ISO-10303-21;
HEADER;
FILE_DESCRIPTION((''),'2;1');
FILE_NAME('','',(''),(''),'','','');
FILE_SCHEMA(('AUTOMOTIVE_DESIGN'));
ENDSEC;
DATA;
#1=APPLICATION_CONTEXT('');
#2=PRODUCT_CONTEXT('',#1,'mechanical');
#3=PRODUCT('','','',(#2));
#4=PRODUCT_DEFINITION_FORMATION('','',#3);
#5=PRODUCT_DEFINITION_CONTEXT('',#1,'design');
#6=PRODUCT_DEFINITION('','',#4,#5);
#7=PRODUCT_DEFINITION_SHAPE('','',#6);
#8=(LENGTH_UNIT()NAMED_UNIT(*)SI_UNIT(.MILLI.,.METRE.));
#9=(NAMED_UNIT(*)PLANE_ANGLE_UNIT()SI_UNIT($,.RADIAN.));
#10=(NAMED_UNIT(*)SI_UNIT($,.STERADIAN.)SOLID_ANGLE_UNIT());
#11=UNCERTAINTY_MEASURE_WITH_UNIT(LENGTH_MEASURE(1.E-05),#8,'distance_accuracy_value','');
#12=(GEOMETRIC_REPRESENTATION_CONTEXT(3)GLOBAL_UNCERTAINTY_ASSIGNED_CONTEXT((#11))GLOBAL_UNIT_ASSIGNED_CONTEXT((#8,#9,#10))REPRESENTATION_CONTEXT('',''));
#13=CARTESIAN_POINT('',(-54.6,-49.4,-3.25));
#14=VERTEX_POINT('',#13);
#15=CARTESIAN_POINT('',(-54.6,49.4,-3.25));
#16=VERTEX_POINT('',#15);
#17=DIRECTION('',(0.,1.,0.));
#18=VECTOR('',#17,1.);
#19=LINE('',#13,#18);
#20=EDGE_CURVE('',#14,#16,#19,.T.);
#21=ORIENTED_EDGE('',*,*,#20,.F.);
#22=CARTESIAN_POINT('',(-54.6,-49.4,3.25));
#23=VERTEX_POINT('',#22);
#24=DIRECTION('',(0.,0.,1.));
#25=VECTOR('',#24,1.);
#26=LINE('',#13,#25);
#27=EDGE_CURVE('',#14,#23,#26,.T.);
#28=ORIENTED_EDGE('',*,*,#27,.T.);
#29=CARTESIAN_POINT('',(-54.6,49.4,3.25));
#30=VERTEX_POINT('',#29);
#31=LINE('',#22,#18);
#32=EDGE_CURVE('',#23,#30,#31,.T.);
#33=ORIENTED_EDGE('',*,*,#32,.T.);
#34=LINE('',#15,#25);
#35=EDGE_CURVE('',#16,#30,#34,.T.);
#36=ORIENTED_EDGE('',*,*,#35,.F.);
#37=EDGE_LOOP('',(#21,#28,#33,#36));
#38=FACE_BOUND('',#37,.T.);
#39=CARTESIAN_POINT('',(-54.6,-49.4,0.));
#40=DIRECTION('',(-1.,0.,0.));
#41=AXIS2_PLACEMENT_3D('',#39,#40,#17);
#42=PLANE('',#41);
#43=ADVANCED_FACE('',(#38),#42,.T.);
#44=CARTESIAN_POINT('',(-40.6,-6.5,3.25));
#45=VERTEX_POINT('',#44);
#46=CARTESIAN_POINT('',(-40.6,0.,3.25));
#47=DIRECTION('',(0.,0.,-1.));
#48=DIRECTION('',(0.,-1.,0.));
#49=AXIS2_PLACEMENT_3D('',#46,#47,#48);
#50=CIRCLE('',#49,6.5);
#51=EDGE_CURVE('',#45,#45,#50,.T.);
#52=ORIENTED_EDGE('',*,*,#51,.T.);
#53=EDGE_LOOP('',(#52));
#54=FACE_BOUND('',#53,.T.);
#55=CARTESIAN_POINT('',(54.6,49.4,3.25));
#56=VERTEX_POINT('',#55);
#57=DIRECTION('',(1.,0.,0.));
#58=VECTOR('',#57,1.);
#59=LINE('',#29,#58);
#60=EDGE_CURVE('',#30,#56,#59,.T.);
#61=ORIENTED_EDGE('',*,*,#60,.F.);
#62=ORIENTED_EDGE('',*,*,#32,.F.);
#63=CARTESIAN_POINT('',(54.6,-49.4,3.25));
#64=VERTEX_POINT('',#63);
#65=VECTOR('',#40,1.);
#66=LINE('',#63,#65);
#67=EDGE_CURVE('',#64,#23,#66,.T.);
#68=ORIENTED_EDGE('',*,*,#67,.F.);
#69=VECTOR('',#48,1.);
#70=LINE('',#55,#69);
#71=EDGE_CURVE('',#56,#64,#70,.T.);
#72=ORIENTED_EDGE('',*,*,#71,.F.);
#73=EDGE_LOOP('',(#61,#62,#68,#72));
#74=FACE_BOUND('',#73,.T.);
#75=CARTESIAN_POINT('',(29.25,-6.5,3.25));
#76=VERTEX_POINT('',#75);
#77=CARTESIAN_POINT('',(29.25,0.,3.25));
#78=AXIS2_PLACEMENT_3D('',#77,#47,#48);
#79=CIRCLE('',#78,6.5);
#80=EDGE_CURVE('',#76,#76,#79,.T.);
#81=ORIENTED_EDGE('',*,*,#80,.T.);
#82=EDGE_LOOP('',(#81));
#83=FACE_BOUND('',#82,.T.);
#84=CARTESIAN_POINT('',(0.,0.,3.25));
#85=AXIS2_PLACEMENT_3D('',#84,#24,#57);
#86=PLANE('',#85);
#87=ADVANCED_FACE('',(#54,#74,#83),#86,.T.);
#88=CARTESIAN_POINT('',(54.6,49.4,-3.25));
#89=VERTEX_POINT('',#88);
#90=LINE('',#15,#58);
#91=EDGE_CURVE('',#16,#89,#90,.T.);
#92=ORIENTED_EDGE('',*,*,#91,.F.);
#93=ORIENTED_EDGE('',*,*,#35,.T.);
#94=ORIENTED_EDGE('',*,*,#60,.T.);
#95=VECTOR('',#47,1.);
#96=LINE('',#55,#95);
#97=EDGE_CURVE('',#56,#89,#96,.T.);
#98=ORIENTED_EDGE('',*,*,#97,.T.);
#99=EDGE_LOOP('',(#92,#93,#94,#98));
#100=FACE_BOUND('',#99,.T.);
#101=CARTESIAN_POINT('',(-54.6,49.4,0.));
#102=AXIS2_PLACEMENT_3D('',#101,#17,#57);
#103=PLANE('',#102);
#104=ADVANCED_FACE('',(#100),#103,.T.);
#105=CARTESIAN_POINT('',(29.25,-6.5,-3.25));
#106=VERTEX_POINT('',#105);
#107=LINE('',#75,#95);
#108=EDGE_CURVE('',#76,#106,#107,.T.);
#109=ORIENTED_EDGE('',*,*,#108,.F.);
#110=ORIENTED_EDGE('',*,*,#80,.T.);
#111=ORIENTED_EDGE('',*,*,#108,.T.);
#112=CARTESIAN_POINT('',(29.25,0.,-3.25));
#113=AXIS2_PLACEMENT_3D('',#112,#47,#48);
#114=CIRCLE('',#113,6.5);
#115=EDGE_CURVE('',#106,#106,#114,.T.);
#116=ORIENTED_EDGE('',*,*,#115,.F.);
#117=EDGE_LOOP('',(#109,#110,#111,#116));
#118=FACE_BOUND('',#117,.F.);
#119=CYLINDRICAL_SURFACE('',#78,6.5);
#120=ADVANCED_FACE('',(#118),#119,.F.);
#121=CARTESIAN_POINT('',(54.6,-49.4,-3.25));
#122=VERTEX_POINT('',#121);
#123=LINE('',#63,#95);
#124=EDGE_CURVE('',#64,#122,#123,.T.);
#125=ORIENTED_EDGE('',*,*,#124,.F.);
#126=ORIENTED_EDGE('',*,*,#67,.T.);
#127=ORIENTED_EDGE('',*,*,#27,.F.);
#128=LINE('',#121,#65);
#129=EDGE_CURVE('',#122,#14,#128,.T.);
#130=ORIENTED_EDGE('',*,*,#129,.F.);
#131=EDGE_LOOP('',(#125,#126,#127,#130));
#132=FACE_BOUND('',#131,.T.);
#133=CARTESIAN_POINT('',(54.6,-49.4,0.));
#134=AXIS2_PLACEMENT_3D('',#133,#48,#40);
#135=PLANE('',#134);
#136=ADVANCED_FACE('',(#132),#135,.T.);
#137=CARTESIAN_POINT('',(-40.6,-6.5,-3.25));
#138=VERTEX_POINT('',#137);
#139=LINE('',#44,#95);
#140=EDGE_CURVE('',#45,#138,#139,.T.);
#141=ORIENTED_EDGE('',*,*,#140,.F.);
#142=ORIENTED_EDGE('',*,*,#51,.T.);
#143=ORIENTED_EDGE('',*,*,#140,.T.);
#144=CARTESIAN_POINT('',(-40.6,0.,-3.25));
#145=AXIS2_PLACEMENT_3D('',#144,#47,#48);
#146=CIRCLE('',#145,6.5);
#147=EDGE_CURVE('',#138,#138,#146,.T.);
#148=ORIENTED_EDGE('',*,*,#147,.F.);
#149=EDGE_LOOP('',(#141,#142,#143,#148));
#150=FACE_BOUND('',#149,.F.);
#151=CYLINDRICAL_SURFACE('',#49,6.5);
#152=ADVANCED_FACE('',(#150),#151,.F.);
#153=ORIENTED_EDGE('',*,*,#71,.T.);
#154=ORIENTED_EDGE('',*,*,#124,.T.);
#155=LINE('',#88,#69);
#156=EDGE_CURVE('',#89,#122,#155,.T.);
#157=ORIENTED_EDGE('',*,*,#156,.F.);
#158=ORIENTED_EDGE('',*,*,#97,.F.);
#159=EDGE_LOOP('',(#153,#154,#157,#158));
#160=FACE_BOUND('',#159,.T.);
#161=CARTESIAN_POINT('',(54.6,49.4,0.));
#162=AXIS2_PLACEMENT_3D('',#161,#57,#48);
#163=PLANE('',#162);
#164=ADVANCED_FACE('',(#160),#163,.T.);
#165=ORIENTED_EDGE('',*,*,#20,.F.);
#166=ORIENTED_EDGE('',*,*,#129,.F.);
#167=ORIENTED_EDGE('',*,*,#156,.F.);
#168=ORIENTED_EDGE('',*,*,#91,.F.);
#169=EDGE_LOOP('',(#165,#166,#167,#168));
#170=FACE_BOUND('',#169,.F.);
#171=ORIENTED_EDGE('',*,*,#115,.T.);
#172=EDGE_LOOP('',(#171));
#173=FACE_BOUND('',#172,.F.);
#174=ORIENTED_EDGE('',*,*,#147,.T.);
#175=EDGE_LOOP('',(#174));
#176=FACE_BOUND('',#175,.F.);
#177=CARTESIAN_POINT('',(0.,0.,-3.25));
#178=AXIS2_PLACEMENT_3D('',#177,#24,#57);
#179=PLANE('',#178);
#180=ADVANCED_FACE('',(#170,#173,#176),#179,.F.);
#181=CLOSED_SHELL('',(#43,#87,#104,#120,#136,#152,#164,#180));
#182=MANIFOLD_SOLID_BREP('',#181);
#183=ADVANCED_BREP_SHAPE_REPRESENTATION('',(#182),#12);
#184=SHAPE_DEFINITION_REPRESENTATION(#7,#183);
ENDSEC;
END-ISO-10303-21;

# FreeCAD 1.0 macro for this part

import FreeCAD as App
import Part
import Sketcher
Q = App.Units.Quantity

doc = App.newDocument("Part")
body = doc.addObject("PartDesign::Body", "Body")

sketch1 = body.newObject("Sketcher::SketchObject", "Sketch")
sketch1.AttachmentSupport = (doc.getObject("XY_Plane"), [""])
sketch1.MapMode = "FlatFace"
sketch1.addGeometry(Part.LineSegment(App.Vector(55, 49, 0), App.Vector(-55, 49, 0)), False)
sketch1.addGeometry(Part.LineSegment(App.Vector(-55, 49, 0), App.Vector(-55, -49, 0)), False)
sketch1.addGeometry(Part.LineSegment(App.Vector(-55, -49, 0), App.Vector(55, -49, 0)), False)
sketch1.addGeometry(Part.LineSegment(App.Vector(55, -49, 0), App.Vector(55, 49, 0)), False)
sketch1.addConstraint(Sketcher.Constraint("Coincident", 0, 2, 1, 1))
sketch1.addConstraint(Sketcher.Constraint("Coincident", 1, 2, 2, 1))
sketch1.addConstraint(Sketcher.Constraint("Coincident", 2, 2, 3, 1))
sketch1.addConstraint(Sketcher.Constraint("Coincident", 3, 2, 0, 1))
sketch1.addConstraint(Sketcher.Constraint("Horizontal", 0))
sketch1.addConstraint(Sketcher.Constraint("Vertical", 1))
sketch1.addConstraint(Sketcher.Constraint("Horizontal", 2))
sketch1.addConstraint(Sketcher.Constraint("Vertical", 3))
sketch1.addConstraint(Sketcher.Constraint("Symmetric", 0, 2, 2, 2, -1, 1))
sketch1.addConstraint(Sketcher.Constraint("DistanceX", 0, 2, 0, 1, Q("109.2 mm")))
sketch1.addConstraint(Sketcher.Constraint("DistanceY", 1, 2, 1, 1, Q("98.8 mm")))
pad1 = body.newObject("PartDesign::Pad", "Pad")
pad1.Profile = sketch1
pad1.Length = 6.5
pad1.Midplane = True

sketch2 = body.newObject("Sketcher::SketchObject", "Sketch001")
sketch2.AttachmentSupport = (doc.getObject("XY_Plane"), [""])
sketch2.MapMode = "FlatFace"
sketch2.AttachmentOffset = App.Placement(App.Vector(0, 0, 3.25), App.Rotation())
sketch2.addGeometry(Part.Circle(App.Vector(-41, 0, 0), App.Vector(0, 0, 1), 6), False)
sketch2.addConstraint(Sketcher.Constraint("PointOnObject", 0, 3, -1))
sketch2.addConstraint(Sketcher.Constraint("Diameter", 0, Q("13 mm")))
sketch2.addConstraint(Sketcher.Constraint("DistanceX", 0, 3, -1, 1, Q("40.6 mm")))
doc.recompute()
hole = body.newObject("PartDesign::Hole", "Hole")
hole.Profile = sketch2
hole.ThreadType = "None"
hole.Diameter = 13
hole.DepthType = "ThroughAll"

sketch3 = body.newObject("Sketcher::SketchObject", "Sketch002")
sketch3.AttachmentSupport = (doc.getObject("XY_Plane"), [""])
sketch3.MapMode = "FlatFace"
sketch3.AttachmentOffset = App.Placement(App.Vector(0, 0, 3.25), App.Rotation())
sketch3.addGeometry(Part.Circle(App.Vector(29, 0, 0), App.Vector(0, 0, 1), 6), False)
sketch3.addConstraint(Sketcher.Constraint("PointOnObject", 0, 3, -1))
sketch3.addConstraint(Sketcher.Constraint("Diameter", 0, Q("13 mm")))
sketch3.addConstraint(Sketcher.Constraint("DistanceX", -1, 1, 0, 3, Q("29.25 mm")))
doc.recompute()
hole2 = body.newObject("PartDesign::Hole", "Hole001")
hole2.Profile = sketch3
hole2.ThreadType = "None"
hole2.Diameter = 13
hole2.DepthType = "ThroughAll"

doc.recompute()
